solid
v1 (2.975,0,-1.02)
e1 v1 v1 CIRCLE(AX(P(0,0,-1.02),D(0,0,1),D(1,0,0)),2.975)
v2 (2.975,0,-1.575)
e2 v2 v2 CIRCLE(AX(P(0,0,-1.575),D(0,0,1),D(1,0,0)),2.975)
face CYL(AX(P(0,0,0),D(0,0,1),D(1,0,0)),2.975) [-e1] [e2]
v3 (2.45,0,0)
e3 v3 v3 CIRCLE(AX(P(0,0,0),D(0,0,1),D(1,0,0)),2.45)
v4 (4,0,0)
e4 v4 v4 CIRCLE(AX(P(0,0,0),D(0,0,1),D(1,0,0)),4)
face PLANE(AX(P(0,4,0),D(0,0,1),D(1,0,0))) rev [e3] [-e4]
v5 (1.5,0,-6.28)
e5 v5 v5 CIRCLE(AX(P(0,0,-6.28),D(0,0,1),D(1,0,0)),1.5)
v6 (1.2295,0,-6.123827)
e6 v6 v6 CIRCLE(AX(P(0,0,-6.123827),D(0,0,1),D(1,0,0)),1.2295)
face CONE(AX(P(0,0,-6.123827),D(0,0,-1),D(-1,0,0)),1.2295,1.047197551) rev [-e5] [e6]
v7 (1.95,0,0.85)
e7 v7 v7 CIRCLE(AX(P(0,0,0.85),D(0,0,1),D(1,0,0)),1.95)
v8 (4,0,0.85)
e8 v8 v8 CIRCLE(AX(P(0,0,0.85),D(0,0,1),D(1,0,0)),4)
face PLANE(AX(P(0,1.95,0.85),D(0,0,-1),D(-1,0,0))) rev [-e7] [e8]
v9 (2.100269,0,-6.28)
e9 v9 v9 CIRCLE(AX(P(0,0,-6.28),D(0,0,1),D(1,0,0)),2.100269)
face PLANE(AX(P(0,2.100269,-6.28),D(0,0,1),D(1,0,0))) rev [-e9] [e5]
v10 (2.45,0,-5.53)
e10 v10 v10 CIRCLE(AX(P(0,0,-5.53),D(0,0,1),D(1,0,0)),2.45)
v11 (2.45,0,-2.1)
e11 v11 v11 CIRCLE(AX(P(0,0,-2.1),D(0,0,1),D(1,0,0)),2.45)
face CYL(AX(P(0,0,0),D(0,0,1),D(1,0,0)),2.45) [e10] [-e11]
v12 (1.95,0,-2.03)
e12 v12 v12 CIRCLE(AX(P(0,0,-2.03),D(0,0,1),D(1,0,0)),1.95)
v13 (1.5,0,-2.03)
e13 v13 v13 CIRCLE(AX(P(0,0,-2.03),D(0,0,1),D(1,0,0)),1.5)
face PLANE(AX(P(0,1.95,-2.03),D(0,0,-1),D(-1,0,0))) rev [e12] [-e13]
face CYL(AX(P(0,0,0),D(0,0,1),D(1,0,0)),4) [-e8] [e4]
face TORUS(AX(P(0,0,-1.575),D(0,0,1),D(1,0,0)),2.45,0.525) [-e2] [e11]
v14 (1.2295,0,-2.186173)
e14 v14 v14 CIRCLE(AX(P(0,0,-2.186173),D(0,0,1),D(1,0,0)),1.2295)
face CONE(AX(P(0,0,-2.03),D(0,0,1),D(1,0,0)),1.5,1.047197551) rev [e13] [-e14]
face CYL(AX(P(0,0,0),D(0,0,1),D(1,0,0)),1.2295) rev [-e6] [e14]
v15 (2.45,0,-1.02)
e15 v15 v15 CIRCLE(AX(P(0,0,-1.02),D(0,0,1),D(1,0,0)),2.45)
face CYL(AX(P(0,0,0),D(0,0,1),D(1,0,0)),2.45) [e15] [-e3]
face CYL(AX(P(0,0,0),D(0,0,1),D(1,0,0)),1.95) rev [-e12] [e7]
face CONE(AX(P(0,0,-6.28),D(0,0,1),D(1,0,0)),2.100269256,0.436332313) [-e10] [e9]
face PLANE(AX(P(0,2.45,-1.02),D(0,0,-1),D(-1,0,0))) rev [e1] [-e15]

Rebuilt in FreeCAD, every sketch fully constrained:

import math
import FreeCAD as App
import Part
import Sketcher
from FreeCAD import Vector
Q = App.Units.Quantity

doc = App.newDocument("Part")
body = doc.addObject("PartDesign::Body", "Body")

# Sketch on YZ plane
sketch1 = body.newObject("Sketcher::SketchObject", "Sketch")
sketch1.AttachmentSupport = (doc.getObject("YZ_Plane"), [""])
sketch1.MapMode = "FlatFace"
sketch1.addGeometry(Part.LineSegment(Vector(1.95, 0.85, 0), Vector(1.95, -2.03, 0)), False)
sketch1.addGeometry(Part.LineSegment(Vector(1.95, -2.03, 0), Vector(1.5, -2.03, 0)), False)
sketch1.addGeometry(Part.LineSegment(Vector(1.5, -2.03, 0), Vector(1.2295, -2.186173, 0)), False)
sketch1.addGeometry(Part.LineSegment(Vector(1.2295, -2.186173, 0), Vector(1.2295, -6.123827, 0)), False)
sketch1.addGeometry(Part.LineSegment(Vector(1.2295, -6.123827, 0), Vector(1.5, -6.28, 0)), False)
sketch1.addGeometry(Part.LineSegment(Vector(1.5, -6.28, 0), Vector(2.100269, -6.28, 0)), False)
sketch1.addGeometry(Part.LineSegment(Vector(2.100269, -6.28, 0), Vector(2.45, -5.53, 0)), False)
sketch1.addGeometry(Part.LineSegment(Vector(2.45, -5.53, 0), Vector(2.45, -2.1, 0)), False)
sketch1.addGeometry(Part.ArcOfCircle(Part.Circle(Vector(2.45, -1.575, 0), Vector(0, 0, 1), 0.525), math.radians(-90), math.radians(0)), False)
sketch1.addGeometry(Part.LineSegment(Vector(2.975, -1.575, 0), Vector(2.975, -1.02, 0)), False)
sketch1.addGeometry(Part.LineSegment(Vector(2.975, -1.02, 0), Vector(2.45, -1.02, 0)), False)
sketch1.addGeometry(Part.LineSegment(Vector(2.45, -1.02, 0), Vector(2.45, 0, 0)), False)
sketch1.addGeometry(Part.LineSegment(Vector(2.45, 0, 0), Vector(4, 0, 0)), False)
sketch1.addGeometry(Part.LineSegment(Vector(4, 0, 0), Vector(4, 0.85, 0)), False)
sketch1.addGeometry(Part.LineSegment(Vector(4, 0.85, 0), Vector(1.95, 0.85, 0)), False)
sketch1.addConstraint(Sketcher.Constraint("Coincident", 0, 2, 1, 1))
sketch1.addConstraint(Sketcher.Constraint("Coincident", 1, 2, 2, 1))
sketch1.addConstraint(Sketcher.Constraint("Coincident", 2, 2, 3, 1))
sketch1.addConstraint(Sketcher.Constraint("Coincident", 3, 2, 4, 1))
sketch1.addConstraint(Sketcher.Constraint("Coincident", 4, 2, 5, 1))
sketch1.addConstraint(Sketcher.Constraint("Coincident", 5, 2, 6, 1))
sketch1.addConstraint(Sketcher.Constraint("Coincident", 6, 2, 7, 1))
sketch1.addConstraint(Sketcher.Constraint("Coincident", 7, 2, 8, 1))
sketch1.addConstraint(Sketcher.Constraint("Tangent", 8, 2, 9, 1))
sketch1.addConstraint(Sketcher.Constraint("Coincident", 9, 2, 10, 1))
sketch1.addConstraint(Sketcher.Constraint("Coincident", 10, 2, 11, 1))
sketch1.addConstraint(Sketcher.Constraint("Coincident", 11, 2, 12, 1))
sketch1.addConstraint(Sketcher.Constraint("Coincident", 12, 2, 13, 1))
sketch1.addConstraint(Sketcher.Constraint("Coincident", 13, 2, 14, 1))
sketch1.addConstraint(Sketcher.Constraint("Coincident", 14, 2, 0, 1))
sketch1.addConstraint(Sketcher.Constraint("Vertical", 0))
sketch1.addConstraint(Sketcher.Constraint("Horizontal", 1))
sketch1.addConstraint(Sketcher.Constraint("Vertical", 3))
sketch1.addConstraint(Sketcher.Constraint("Horizontal", 5))
sketch1.addConstraint(Sketcher.Constraint("Vertical", 7))
sketch1.addConstraint(Sketcher.Constraint("Vertical", 9))
sketch1.addConstraint(Sketcher.Constraint("Horizontal", 10))
sketch1.addConstraint(Sketcher.Constraint("Vertical", 11))
sketch1.addConstraint(Sketcher.Constraint("Horizontal", 12))
sketch1.addConstraint(Sketcher.Constraint("Vertical", 13))
sketch1.addConstraint(Sketcher.Constraint("Horizontal", 14))
sketch1.addConstraint(Sketcher.Constraint("PointOnObject", 11, 2, -1))
sketch1.addConstraint(Sketcher.Constraint("Vertical", 1, 2, 4, 2))
sketch1.addConstraint(Sketcher.Constraint("Vertical", 8, 3, 6, 2))
sketch1.addConstraint(Sketcher.Constraint("Vertical", 7, 2, 10, 2))
sketch1.addConstraint(Sketcher.Constraint("Equal", 2, 4))
sketch1.addConstraint(Sketcher.Constraint("Angle", 2, Q("-150 deg")))
sketch1.addConstraint(Sketcher.Constraint("Angle", 6, Q("65 deg")))
sketch1.addConstraint(Sketcher.Constraint("DistanceX", -1, 1, 12, 2, Q("4 mm")))
sketch1.addConstraint(Sketcher.Constraint("Radius", 8, Q("0.525 mm")))
sketch1.addConstraint(Sketcher.Constraint("DistanceX", 1, 2, 1, 1, Q("0.45 mm")))
sketch1.addConstraint(Sketcher.Constraint("DistanceX", 12, 1, 12, 2, Q("1.55 mm")))
sketch1.addConstraint(Sketcher.Constraint("DistanceX", 14, 2, 14, 1, Q("2.05 mm")))
sketch1.addConstraint(Sketcher.Constraint("DistanceY", 0, 2, 0, 1, Q("2.88 mm")))
sketch1.addConstraint(Sketcher.Constraint("DistanceY", 7, 1, 7, 2, Q("3.43 mm")))
sketch1.addConstraint(Sketcher.Constraint("DistanceY", 11, 1, 11, 2, Q("1.02 mm")))
sketch1.addConstraint(Sketcher.Constraint("DistanceY", 13, 1, 13, 2, Q("0.85 mm")))
sketch1.addConstraint(Sketcher.Constraint("DistanceY", 7, 2, -1, 1, Q("2.1 mm")))
sketch1.addConstraint(Sketcher.Constraint("DistanceY", 4, 2, -1, 1, Q("6.28 mm")))
sketch1.addConstraint(Sketcher.Constraint("DistanceX", -1, 1, 2, 2, Q("1.2295 mm")))
revolution = body.newObject("PartDesign::Revolution", "Revolution")
revolution.Profile = sketch1
revolution.ReferenceAxis = (sketch1, ["V_Axis"])
revolution.Angle = 360

doc.recompute()
